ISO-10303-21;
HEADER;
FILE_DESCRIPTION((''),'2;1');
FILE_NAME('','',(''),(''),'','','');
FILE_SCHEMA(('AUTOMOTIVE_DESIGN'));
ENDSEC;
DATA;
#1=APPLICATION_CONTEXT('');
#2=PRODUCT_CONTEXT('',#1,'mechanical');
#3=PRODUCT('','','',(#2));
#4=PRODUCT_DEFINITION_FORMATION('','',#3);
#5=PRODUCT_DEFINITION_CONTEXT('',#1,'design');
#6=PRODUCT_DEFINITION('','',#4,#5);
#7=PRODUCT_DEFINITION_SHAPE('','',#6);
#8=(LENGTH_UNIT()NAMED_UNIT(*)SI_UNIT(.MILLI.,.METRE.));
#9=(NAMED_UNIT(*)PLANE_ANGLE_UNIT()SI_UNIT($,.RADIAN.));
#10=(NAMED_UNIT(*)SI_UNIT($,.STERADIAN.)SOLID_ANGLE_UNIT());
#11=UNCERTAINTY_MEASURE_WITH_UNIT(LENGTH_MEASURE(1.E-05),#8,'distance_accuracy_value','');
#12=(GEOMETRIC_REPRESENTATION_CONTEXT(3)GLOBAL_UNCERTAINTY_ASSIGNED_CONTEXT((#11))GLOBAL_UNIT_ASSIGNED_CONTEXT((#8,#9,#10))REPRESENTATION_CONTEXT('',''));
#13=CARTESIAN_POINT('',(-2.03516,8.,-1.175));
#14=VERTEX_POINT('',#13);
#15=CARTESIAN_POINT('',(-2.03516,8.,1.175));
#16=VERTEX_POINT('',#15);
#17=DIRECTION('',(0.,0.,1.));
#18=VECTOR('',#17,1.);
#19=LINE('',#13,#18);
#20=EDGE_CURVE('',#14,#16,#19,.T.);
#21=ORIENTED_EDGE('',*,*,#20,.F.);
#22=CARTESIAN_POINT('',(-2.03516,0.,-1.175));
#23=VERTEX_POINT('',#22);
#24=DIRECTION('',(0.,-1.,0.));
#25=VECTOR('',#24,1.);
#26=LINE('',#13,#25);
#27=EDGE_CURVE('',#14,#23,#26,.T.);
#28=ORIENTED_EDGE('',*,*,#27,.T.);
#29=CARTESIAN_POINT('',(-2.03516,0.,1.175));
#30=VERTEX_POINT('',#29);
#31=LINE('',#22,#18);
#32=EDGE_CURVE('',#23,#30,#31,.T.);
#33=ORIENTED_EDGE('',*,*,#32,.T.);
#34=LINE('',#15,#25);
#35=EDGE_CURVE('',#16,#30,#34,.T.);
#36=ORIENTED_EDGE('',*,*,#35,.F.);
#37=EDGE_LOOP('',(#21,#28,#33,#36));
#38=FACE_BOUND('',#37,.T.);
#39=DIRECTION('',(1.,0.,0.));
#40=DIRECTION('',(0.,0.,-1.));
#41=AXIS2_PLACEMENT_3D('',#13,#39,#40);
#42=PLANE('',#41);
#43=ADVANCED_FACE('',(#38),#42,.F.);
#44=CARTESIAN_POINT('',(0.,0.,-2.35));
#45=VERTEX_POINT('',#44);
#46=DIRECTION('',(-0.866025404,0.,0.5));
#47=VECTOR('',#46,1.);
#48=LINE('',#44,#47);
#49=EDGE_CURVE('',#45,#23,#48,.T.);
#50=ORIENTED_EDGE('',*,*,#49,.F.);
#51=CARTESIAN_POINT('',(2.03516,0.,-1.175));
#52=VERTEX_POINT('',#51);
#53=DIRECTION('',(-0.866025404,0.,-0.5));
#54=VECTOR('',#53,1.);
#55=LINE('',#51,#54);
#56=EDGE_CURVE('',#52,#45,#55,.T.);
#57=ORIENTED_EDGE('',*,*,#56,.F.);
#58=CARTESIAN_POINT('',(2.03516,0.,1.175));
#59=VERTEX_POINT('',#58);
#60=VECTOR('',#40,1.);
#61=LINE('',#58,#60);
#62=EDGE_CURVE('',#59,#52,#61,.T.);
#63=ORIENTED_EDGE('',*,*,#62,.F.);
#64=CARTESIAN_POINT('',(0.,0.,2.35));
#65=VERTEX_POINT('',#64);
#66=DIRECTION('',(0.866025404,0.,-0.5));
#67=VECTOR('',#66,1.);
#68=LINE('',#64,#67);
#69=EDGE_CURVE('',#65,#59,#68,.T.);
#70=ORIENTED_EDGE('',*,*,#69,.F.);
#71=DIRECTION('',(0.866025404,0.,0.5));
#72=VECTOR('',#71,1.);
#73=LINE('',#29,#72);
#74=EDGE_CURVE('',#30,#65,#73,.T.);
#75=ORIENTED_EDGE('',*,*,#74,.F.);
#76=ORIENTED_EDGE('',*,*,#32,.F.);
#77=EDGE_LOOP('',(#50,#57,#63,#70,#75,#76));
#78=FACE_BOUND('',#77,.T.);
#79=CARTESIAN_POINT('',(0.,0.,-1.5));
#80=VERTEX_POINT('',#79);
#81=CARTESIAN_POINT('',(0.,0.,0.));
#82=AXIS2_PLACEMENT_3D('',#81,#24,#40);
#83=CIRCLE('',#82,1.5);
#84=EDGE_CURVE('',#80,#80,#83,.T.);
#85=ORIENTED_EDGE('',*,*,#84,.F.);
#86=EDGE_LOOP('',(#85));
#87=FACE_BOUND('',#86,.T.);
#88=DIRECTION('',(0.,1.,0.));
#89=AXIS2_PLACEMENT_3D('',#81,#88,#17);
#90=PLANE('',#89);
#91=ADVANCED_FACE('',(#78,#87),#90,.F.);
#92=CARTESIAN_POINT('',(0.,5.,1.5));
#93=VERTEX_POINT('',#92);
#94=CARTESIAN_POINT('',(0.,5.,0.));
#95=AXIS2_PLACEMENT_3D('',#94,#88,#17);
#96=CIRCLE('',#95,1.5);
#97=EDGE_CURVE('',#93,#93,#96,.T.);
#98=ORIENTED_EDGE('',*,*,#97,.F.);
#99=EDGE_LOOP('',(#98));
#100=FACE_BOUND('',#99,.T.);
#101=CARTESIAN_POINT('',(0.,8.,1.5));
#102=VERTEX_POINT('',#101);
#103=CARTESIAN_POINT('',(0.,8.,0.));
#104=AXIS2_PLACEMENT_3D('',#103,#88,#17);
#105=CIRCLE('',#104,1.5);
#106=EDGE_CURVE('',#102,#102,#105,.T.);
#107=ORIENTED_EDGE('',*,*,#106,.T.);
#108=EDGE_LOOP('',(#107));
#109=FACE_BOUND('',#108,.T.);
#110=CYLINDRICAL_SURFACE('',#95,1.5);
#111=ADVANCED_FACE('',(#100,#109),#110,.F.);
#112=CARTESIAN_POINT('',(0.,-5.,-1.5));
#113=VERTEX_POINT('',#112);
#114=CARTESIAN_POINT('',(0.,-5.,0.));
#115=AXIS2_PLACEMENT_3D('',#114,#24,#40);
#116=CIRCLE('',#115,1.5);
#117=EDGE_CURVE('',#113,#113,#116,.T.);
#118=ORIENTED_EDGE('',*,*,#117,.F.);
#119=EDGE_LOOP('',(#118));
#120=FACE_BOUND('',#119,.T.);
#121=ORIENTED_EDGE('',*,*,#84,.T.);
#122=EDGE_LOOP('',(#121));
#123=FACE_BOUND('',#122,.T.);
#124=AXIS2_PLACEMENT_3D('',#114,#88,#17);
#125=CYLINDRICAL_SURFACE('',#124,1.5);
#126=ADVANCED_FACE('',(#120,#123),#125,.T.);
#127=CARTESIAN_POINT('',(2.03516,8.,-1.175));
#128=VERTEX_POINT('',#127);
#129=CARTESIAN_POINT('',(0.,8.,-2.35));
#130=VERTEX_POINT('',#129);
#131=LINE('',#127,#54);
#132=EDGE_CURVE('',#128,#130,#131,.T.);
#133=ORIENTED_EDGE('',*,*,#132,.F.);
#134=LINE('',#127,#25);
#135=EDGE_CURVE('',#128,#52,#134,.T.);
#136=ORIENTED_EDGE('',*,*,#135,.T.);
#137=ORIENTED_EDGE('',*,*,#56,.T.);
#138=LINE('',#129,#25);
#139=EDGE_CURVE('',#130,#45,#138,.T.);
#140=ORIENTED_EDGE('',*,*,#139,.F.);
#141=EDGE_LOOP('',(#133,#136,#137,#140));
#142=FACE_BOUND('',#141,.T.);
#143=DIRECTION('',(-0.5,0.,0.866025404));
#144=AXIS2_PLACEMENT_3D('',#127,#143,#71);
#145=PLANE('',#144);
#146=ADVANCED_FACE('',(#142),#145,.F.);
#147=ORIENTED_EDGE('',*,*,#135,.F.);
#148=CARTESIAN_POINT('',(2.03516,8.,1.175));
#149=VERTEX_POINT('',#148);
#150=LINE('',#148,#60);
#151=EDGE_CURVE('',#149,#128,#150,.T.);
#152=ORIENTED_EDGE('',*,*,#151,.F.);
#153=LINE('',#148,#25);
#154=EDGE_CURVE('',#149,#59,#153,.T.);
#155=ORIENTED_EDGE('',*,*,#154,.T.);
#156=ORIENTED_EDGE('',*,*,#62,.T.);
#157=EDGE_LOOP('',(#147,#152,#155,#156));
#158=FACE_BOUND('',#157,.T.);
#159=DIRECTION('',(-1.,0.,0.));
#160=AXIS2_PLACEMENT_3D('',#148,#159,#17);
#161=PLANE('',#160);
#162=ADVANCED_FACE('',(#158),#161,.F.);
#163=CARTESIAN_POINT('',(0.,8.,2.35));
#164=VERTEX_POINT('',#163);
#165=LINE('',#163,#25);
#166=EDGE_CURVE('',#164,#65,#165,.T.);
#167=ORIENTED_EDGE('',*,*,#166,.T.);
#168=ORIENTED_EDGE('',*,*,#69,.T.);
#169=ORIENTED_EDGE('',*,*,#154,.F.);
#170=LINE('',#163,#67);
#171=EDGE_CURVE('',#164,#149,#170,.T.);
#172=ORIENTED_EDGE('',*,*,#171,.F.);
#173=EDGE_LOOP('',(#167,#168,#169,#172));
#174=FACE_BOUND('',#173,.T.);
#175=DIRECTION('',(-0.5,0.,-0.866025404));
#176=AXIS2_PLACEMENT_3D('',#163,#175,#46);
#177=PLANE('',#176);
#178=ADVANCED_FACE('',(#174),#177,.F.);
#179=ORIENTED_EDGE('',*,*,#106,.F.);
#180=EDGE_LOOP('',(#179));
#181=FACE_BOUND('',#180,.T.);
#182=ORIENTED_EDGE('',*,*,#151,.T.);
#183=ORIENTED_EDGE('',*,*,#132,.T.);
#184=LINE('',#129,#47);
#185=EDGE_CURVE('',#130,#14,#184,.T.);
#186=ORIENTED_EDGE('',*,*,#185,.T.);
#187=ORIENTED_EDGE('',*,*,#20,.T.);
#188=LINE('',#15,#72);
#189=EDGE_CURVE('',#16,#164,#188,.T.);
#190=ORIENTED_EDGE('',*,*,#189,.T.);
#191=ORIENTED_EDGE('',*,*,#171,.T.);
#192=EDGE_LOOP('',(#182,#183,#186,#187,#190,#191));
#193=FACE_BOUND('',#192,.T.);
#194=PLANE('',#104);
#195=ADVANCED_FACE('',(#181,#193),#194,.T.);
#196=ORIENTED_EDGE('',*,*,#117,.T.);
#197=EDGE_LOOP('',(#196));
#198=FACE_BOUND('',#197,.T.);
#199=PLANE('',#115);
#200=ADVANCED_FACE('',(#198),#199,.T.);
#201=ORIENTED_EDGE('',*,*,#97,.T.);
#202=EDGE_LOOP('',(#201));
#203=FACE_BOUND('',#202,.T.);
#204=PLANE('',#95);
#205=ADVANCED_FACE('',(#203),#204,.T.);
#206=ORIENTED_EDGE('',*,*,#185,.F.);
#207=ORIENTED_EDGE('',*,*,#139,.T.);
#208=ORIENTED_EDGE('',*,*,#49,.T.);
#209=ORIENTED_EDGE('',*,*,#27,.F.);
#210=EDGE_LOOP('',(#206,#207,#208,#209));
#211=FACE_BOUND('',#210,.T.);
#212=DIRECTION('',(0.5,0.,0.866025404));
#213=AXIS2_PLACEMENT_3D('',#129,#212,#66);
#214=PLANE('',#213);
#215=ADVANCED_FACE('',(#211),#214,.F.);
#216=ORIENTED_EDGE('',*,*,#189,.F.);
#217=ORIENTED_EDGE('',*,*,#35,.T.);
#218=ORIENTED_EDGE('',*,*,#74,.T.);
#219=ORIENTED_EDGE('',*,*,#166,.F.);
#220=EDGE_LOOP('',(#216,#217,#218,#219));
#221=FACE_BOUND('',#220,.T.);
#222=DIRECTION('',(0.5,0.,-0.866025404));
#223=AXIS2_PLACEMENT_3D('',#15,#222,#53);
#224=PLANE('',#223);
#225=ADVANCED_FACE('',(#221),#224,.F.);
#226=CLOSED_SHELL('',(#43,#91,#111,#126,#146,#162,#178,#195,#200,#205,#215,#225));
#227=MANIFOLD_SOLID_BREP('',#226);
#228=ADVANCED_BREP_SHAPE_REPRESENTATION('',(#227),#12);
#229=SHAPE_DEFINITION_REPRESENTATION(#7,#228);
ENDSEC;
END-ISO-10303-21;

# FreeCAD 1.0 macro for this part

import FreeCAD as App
import Part
import Sketcher

V = App.Vector
Q = App.Units.Quantity

doc = App.newDocument("Part")
params = doc.addObject("Spreadsheet::Sheet", "Params")
for row, (alias, value) in enumerate([
    ("sketch1_height", "2.35 mm"),
    ("pad1_length", "8 mm"),
    ("sketch2_diameter", "3 mm"),
    ("pocket1_length", "3 mm"),
    ("sketch3_diameter", "3 mm"),
    ("pad2_length", "5 mm"),
], start=1):
    params.set(f"A{row}", alias)
    params.set(f"B{row}", "=" + value)
    params.setAlias(f"B{row}", alias)

body = doc.addObject("PartDesign::Body", "Body")

# Sketch on XZ plane
sketch1 = doc.addObject("Sketcher::SketchObject", "Sketch")
body.addObject(sketch1)
sketch1.AttachmentSupport = (doc.XZ_Plane, [""])
sketch1.MapMode = "FlatFace"
sketch1.addGeometry(Part.LineSegment(V(0, -2.4, 0), V(-2, -1.2, 0)), False)
sketch1.addGeometry(Part.LineSegment(V(-2, -1.2, 0), V(-2, 1.2, 0)), False)
sketch1.addGeometry(Part.LineSegment(V(-2, 1.2, 0), V(0, 2.4, 0)), False)
sketch1.addGeometry(Part.LineSegment(V(0, 2.4, 0), V(2, 1.2, 0)), False)
sketch1.addGeometry(Part.LineSegment(V(2, 1.2, 0), V(2, -1.2, 0)), False)
sketch1.addGeometry(Part.LineSegment(V(2, -1.2, 0), V(0, -2.4, 0)), False)
sketch1.addConstraint(Sketcher.Constraint("Coincident", 0, 2, 1, 1))
sketch1.addConstraint(Sketcher.Constraint("Coincident", 1, 2, 2, 1))
sketch1.addConstraint(Sketcher.Constraint("Coincident", 2, 2, 3, 1))
sketch1.addConstraint(Sketcher.Constraint("Coincident", 3, 2, 4, 1))
sketch1.addConstraint(Sketcher.Constraint("Coincident", 4, 2, 5, 1))
sketch1.addConstraint(Sketcher.Constraint("Coincident", 5, 2, 0, 1))
sketch1.addConstraint(Sketcher.Constraint("Vertical", 1))
sketch1.addConstraint(Sketcher.Constraint("Vertical", 4))
sketch1.addConstraint(Sketcher.Constraint("Symmetric", 0, 2, 3, 2, -1, 1))
sketch1.addConstraint(Sketcher.Constraint("Symmetric", 2, 2, 5, 2, -1, 1))
sketch1.addConstraint(Sketcher.Constraint("PointOnObject", 2, 2, -2))
sketch1.addConstraint(Sketcher.Constraint("Parallel", 2, 5))
sketch1.addConstraint(Sketcher.Constraint("Horizontal", 1, 2, 3, 2))
sketch1.addConstraint(Sketcher.Constraint("Angle", 0, Q("150 deg")))
sketch1.addConstraint(Sketcher.Constraint("DistanceY", 1, 1, 1, 2, Q("2.35 mm")))
sketch1.addConstraint(Sketcher.Constraint("DistanceY", 5, 2, 2, 2, Q("4.7 mm")))
sketch1.setExpression("Constraints[14]", "Params.sketch1_height")
pad1 = doc.addObject("PartDesign::Pad", "Pad")
body.addObject(pad1)
pad1.Profile = sketch1
pad1.setExpression("Length", "Params.pad1_length")
pad1.Reversed = True

# Sketch on XZ plane
sketch2 = doc.addObject("Sketcher::SketchObject", "Sketch001")
body.addObject(sketch2)
sketch2.AttachmentSupport = (doc.XZ_Plane, [""])
sketch2.MapMode = "FlatFace"
sketch2.AttachmentOffset = App.Placement(V(0, 0, -8), App.Rotation())
sketch2.addGeometry(Part.Circle(V(0, 0, 0), V(0, 0, 1), 1.5), False)
sketch2.addConstraint(Sketcher.Constraint("Coincident", 0, 3, -1, 1))
sketch2.addConstraint(Sketcher.Constraint("Diameter", 0, Q("3 mm")))
sketch2.setExpression("Constraints[1]", "Params.sketch2_diameter")
pocket1 = doc.addObject("PartDesign::Pocket", "Pocket")
body.addObject(pocket1)
pocket1.Profile = sketch2
pocket1.setExpression("Length", "Params.pocket1_length")
pocket1.Reversed = True

# Sketch on XZ plane
sketch3 = doc.addObject("Sketcher::SketchObject", "Sketch002")
body.addObject(sketch3)
sketch3.AttachmentSupport = (doc.XZ_Plane, [""])
sketch3.MapMode = "FlatFace"
sketch3.addGeometry(Part.Circle(V(0, 0, 0), V(0, 0, 1), 1.5), False)
sketch3.addConstraint(Sketcher.Constraint("Coincident", 0, 3, -1, 1))
sketch3.addConstraint(Sketcher.Constraint("Diameter", 0, Q("3 mm")))
sketch3.setExpression("Constraints[1]", "Params.sketch3_diameter")
pad2 = doc.addObject("PartDesign::Pad", "Pad001")
body.addObject(pad2)
pad2.Profile = sketch3
pad2.setExpression("Length", "Params.pad2_length")

doc.recompute()
